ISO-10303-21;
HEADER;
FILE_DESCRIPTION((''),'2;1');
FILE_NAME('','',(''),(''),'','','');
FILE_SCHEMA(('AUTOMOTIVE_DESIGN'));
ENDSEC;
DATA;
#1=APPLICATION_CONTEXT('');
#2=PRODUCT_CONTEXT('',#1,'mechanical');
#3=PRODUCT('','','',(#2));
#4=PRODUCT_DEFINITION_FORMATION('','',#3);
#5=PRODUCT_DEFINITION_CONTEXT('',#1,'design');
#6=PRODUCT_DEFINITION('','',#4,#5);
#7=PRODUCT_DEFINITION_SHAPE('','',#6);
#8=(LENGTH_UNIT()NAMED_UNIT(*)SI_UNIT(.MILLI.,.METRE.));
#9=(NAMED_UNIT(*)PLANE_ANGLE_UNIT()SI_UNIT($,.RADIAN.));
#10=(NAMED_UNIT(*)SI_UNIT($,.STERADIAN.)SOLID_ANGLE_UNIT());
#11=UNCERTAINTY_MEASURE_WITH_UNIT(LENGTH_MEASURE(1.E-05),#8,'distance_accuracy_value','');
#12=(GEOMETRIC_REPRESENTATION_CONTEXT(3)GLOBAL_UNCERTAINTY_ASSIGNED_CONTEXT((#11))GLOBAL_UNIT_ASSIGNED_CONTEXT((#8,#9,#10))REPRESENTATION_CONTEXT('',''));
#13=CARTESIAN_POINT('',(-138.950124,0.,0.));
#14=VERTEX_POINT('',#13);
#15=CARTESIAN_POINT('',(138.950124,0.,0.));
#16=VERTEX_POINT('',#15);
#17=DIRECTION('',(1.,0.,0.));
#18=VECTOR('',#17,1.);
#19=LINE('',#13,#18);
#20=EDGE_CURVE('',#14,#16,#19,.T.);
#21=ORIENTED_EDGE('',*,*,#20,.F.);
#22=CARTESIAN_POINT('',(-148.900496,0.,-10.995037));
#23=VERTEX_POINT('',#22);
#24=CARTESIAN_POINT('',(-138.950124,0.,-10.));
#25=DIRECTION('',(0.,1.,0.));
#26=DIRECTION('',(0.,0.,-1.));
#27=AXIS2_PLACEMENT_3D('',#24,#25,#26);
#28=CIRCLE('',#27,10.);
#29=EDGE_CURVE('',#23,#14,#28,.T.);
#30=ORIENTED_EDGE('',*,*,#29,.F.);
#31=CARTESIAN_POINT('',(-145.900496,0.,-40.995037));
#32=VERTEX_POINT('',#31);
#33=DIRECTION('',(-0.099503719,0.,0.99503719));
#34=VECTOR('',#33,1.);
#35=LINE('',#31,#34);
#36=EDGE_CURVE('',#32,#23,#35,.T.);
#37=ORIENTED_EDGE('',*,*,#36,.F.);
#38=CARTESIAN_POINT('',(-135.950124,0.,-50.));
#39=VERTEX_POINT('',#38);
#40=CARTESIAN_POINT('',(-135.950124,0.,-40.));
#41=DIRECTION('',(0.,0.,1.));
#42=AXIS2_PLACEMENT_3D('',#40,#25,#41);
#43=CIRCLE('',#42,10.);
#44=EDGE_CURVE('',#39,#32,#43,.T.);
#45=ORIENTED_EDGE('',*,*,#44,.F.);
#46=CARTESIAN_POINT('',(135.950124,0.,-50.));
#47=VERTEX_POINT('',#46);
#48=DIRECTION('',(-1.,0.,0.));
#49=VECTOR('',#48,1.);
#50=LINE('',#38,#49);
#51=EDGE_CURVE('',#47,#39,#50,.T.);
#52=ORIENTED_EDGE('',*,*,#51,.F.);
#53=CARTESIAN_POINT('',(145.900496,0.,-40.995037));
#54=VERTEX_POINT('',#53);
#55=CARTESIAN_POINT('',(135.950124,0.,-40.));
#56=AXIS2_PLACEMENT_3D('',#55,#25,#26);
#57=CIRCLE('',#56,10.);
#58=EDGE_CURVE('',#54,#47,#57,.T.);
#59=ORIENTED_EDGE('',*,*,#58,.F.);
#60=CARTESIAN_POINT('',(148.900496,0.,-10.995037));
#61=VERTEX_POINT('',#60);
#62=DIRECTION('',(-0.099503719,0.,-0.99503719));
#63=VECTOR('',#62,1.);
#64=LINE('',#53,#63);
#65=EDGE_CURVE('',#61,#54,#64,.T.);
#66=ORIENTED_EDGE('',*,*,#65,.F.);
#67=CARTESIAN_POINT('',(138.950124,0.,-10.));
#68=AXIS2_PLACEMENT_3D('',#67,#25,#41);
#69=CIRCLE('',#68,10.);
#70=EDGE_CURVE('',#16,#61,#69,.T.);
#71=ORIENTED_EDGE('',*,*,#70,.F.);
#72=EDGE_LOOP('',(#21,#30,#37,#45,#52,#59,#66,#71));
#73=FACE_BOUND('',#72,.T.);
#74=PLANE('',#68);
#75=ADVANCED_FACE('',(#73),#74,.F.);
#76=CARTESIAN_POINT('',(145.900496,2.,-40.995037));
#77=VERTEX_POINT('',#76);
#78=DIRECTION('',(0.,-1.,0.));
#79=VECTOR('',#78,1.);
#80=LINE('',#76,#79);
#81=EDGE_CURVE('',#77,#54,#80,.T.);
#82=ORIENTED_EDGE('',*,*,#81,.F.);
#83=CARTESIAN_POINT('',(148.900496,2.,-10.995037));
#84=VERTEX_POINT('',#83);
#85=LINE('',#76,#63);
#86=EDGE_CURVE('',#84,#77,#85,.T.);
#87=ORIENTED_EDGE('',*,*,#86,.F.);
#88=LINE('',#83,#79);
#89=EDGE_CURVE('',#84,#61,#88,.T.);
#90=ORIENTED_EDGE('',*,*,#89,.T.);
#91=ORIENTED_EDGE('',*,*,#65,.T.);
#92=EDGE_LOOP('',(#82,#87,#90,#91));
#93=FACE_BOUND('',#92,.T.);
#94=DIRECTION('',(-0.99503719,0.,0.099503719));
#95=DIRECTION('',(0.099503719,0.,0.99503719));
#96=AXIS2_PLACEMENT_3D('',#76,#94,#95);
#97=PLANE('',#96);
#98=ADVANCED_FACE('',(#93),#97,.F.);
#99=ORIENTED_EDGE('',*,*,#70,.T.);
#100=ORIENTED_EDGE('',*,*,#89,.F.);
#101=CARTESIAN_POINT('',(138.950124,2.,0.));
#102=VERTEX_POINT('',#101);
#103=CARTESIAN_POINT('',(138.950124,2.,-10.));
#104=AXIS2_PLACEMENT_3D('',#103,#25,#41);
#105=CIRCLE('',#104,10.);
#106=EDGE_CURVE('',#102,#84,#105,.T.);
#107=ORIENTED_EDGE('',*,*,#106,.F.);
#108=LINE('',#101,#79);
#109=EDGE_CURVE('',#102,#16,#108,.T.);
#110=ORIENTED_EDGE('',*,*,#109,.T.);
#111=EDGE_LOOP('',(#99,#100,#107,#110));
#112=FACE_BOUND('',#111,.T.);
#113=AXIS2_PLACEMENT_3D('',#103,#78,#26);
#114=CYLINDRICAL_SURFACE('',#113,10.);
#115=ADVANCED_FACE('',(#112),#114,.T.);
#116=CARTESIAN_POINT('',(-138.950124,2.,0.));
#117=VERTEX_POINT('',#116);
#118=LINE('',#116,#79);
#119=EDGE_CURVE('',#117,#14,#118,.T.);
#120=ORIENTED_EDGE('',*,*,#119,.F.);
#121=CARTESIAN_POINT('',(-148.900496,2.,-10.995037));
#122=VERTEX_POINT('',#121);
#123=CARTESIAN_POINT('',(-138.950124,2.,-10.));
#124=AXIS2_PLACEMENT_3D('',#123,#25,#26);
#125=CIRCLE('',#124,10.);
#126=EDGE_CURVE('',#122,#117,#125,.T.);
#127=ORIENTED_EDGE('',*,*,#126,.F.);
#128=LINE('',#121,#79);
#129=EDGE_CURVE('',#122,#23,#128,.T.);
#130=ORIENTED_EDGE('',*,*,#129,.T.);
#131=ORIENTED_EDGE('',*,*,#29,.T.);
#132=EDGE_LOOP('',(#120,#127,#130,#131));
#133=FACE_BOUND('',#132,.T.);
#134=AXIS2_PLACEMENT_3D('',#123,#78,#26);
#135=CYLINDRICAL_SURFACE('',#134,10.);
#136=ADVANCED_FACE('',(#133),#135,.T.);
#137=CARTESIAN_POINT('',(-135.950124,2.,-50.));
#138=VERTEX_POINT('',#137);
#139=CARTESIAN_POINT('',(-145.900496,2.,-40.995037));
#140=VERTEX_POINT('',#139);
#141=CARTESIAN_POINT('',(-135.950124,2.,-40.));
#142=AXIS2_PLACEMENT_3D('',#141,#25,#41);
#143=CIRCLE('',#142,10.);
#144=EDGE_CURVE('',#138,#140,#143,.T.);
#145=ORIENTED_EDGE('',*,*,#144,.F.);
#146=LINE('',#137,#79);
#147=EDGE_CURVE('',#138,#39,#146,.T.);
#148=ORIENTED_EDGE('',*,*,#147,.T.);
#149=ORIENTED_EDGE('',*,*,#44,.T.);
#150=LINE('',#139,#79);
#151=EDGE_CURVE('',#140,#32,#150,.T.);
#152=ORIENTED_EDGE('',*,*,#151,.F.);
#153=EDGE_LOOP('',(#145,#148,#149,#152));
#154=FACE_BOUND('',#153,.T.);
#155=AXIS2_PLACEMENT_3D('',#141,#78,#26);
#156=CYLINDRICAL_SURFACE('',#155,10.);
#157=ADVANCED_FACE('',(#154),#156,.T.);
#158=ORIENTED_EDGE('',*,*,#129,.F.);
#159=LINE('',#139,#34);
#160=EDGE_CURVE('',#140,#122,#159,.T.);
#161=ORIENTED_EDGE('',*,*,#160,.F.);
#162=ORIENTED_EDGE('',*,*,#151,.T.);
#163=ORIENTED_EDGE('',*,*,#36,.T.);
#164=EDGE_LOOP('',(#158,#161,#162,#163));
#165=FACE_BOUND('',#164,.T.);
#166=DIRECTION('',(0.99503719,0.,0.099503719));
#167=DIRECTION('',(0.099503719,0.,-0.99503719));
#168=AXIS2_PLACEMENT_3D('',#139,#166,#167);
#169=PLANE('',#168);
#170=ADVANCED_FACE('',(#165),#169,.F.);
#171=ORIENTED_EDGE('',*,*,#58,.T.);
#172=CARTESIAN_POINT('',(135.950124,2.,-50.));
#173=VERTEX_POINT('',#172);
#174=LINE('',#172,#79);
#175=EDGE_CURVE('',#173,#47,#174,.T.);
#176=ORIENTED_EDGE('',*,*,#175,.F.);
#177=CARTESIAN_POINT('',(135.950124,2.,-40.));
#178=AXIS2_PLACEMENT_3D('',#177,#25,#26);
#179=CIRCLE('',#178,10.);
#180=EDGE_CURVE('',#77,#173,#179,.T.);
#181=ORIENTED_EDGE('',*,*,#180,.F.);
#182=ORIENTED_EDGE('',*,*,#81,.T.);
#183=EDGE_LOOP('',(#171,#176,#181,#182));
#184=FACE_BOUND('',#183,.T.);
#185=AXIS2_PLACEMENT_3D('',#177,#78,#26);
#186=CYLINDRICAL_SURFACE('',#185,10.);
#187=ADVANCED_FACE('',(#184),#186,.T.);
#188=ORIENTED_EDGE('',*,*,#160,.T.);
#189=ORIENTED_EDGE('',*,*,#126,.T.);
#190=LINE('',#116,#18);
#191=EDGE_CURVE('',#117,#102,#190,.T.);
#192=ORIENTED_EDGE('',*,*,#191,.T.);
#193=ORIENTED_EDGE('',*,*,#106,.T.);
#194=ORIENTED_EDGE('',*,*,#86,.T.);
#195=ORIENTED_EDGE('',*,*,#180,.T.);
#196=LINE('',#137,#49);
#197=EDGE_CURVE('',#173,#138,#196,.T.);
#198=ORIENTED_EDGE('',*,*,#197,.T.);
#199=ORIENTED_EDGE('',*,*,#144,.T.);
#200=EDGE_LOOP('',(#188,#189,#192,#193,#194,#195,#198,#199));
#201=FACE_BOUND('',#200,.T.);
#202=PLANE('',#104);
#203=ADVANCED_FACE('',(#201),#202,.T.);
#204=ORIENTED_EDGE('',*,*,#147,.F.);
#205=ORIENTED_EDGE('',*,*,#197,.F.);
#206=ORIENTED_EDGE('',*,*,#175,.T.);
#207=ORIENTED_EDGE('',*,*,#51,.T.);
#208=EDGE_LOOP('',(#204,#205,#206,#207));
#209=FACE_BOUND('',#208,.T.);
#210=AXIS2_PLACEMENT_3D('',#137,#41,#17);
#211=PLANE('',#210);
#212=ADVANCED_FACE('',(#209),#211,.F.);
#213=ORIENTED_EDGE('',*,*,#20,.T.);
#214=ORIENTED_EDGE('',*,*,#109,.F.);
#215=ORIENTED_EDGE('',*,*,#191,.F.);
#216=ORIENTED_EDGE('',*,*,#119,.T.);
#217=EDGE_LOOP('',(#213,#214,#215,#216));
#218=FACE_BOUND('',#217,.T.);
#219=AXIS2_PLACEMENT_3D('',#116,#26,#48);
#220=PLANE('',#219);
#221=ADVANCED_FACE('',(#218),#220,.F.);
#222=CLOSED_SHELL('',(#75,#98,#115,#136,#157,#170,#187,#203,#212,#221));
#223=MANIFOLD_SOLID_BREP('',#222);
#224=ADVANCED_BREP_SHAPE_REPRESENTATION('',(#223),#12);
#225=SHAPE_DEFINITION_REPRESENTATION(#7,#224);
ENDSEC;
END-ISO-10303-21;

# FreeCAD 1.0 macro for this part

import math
import FreeCAD as App
import Part
import Sketcher
from FreeCAD import Vector

doc = App.newDocument("Part")
body = doc.addObject("PartDesign::Body", "Body")

# Sketch on XZ plane
sketch1 = doc.addObject("Sketcher::SketchObject", "Sketch")
body.addObject(sketch1)
sketch1.AttachmentSupport = (doc.XZ_Plane, [""])
sketch1.MapMode = "FlatFace"
sketch1.addGeometry(Part.LineSegment(Vector(-139, 0, 0), Vector(139, 0, 0)), False)
sketch1.addGeometry(Part.ArcOfCircle(Part.Circle(Vector(139, -10, 0), Vector(0, 0, 1), 10), math.radians(-6), math.radians(90)), False)
sketch1.addGeometry(Part.LineSegment(Vector(149, -11, 0), Vector(146, -41, 0)), False)
sketch1.addGeometry(Part.ArcOfCircle(Part.Circle(Vector(136, -40, 0), Vector(0, 0, 1), 10), math.radians(-90), math.radians(-6)), False)
sketch1.addGeometry(Part.LineSegment(Vector(136, -50, 0), Vector(-136, -50, 0)), False)
sketch1.addGeometry(Part.ArcOfCircle(Part.Circle(Vector(-136, -40, 0), Vector(0, 0, 1), 10), math.radians(-174), math.radians(-90)), False)
sketch1.addGeometry(Part.LineSegment(Vector(-146, -41, 0), Vector(-149, -11, 0)), False)
sketch1.addGeometry(Part.ArcOfCircle(Part.Circle(Vector(-139, -10, 0), Vector(0, 0, 1), 10), math.radians(90), math.radians(186)), False)
sketch1.addConstraint(Sketcher.Constraint("Tangent", 0, 2, 1, 2))
sketch1.addConstraint(Sketcher.Constraint("Tangent", 1, 1, 2, 1))
sketch1.addConstraint(Sketcher.Constraint("Tangent", 2, 2, 3, 2))
sketch1.addConstraint(Sketcher.Constraint("Tangent", 3, 1, 4, 1))
sketch1.addConstraint(Sketcher.Constraint("Tangent", 4, 2, 5, 2))
sketch1.addConstraint(Sketcher.Constraint("Tangent", 5, 1, 6, 1))
sketch1.addConstraint(Sketcher.Constraint("Tangent", 6, 2, 7, 2))
sketch1.addConstraint(Sketcher.Constraint("Tangent", 7, 1, 0, 1))
sketch1.addConstraint(Sketcher.Constraint("Horizontal", 0))
sketch1.addConstraint(Sketcher.Constraint("Horizontal", 4))
sketch1.addConstraint(Sketcher.Constraint("Equal", 1, 3))
sketch1.addConstraint(Sketcher.Constraint("Equal", 3, 5))
sketch1.addConstraint(Sketcher.Constraint("Equal", 5, 7))
sketch1.addConstraint(Sketcher.Constraint("Symmetric", 0, 2, 7, 1, -1, 1))
sketch1.addConstraint(Sketcher.Constraint("Horizontal", 2, 2, 5, 1))
sketch1.addConstraint(Sketcher.Constraint("Radius", 1, 10.0))
sketch1.addConstraint(Sketcher.Constraint("DistanceY", 3, 3, -1, 1, 40.0))
sketch1.addConstraint(Sketcher.Constraint("DistanceX", 3, 3, 1, 3, 3.0))
sketch1.addConstraint(Sketcher.Constraint("DistanceX", 0, 1, 0, 2, 277.900249))
pad1 = doc.addObject("PartDesign::Pad", "Pad")
body.addObject(pad1)
pad1.Profile = sketch1
pad1.Length = 2
pad1.Reversed = True

doc.recompute()
